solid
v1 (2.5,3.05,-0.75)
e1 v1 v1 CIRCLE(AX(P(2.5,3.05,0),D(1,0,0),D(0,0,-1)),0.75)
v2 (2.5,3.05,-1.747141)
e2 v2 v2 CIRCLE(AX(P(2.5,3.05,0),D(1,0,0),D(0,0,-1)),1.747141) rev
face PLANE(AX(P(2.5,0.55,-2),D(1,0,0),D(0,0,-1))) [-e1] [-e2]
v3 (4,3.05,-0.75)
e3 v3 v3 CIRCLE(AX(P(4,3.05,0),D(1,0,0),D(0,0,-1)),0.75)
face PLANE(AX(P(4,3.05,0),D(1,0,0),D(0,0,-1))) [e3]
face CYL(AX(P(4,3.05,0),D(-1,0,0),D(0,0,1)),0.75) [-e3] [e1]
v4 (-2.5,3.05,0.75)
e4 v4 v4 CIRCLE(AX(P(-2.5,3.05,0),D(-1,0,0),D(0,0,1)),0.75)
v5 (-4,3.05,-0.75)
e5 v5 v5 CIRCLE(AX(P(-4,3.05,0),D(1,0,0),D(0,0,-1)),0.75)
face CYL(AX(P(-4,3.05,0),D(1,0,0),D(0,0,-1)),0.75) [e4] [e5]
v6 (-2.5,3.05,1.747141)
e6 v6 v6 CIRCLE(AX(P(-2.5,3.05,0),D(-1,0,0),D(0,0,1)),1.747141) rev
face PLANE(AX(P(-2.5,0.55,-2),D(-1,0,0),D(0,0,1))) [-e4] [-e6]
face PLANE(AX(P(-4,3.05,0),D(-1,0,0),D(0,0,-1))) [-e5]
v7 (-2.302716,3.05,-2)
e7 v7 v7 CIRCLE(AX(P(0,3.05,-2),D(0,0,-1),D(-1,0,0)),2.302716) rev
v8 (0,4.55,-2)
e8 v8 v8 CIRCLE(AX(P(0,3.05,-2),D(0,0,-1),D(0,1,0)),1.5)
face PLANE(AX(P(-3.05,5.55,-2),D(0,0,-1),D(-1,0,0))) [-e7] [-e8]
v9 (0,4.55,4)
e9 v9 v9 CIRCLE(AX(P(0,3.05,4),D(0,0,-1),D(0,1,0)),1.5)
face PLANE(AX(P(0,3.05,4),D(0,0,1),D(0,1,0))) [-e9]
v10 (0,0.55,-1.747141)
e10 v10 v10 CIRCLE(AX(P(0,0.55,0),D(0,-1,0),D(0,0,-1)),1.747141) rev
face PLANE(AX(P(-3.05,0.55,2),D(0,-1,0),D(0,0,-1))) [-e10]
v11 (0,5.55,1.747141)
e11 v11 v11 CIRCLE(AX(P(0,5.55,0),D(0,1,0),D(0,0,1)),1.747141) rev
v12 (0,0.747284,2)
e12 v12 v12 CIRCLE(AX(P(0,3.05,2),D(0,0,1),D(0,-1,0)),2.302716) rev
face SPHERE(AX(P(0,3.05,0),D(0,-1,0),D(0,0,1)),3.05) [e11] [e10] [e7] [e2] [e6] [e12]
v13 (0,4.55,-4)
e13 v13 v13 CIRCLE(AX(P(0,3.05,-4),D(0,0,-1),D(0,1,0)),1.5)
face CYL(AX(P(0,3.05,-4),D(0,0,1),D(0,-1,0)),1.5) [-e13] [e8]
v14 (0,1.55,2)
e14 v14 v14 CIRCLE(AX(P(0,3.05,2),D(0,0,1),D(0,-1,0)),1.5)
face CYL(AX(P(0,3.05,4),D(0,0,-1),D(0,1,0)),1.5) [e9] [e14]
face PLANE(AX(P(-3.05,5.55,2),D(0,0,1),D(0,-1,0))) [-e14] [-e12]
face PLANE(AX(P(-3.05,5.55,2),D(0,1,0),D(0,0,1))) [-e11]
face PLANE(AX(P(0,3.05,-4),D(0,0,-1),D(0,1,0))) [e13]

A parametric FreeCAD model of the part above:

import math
import FreeCAD as App
import Part
import Sketcher
from FreeCAD import Vector
Q = App.Units.Quantity


def add_polygon(sketch, points):
    """Adds a closed chain of lines whose ends are joined by coincident constraints."""
    first, n = sketch.GeometryCount, len(points)
    for a, b in zip(points, points[1:] + points[:1]):
        sketch.addGeometry(Part.LineSegment(App.Vector(*a, 0), App.Vector(*b, 0)), False)
    for i in range(n):
        sketch.addConstraint(Sketcher.Constraint("Coincident", first + i, 2, first + (i + 1) % n, 1))

doc = App.newDocument("Part")
params = doc.addObject("Spreadsheet::Sheet", "Params")
for row, (alias, value) in enumerate([
    ("sketch1_radius", "3.05 mm"),
    ("revolution_angle", "360 deg"),
    ("sketch2_width", "5 mm"),
    ("sketch2_height", "4 mm"),
    ("sketch3_width", "5 mm"),
    ("sketch4_diameter", "1.5 mm"),
    ("pad1_length", "1.5 mm"),
    ("sketch5_diameter", "3 mm"),
    ("pad2_length", "2 mm"),
], start=1):
    params.set(f"A{row}", alias)
    params.set(f"B{row}", "=" + value)
    params.setAlias(f"B{row}", alias)

body = doc.addObject("PartDesign::Body", "Body")

# Sketch on YZ plane
sketch1 = body.newObject("Sketcher::SketchObject", "Sketch")
sketch1.AttachmentSupport = (doc.getObject("YZ_Plane"), [""])
sketch1.MapMode = "FlatFace"
sketch1.addGeometry(Part.LineSegment(Vector(6.1, 0, 0), Vector(0, 0, 0)), False)
sketch1.addGeometry(Part.ArcOfCircle(Part.Circle(Vector(3.05, 0, 0), Vector(0, 0, 1), 3.05), math.radians(180), math.radians(360)), False)
sketch1.addConstraint(Sketcher.Constraint("Coincident", 0, 1, 1, 2))
sketch1.addConstraint(Sketcher.Constraint("Coincident", 1, 1, 0, 2))
sketch1.addConstraint(Sketcher.Constraint("Horizontal", 0))
sketch1.addConstraint(Sketcher.Constraint("Coincident", 1, 1, -1, 1))
sketch1.addConstraint(Sketcher.Constraint("PointOnObject", 1, 3, -1))
sketch1.addConstraint(Sketcher.Constraint("Radius", 1, Q("3.05 mm")))
sketch1.setExpression("Constraints[5]", "Params.sketch1_radius")
revolution = body.newObject("PartDesign::Revolution", "Revolution")
revolution.Profile = sketch1
revolution.ReferenceAxis = (sketch1, ["H_Axis"])
revolution.setExpression("Angle", "Params.revolution_angle")

# Sketch on YZ plane
sketch2 = body.newObject("Sketcher::SketchObject", "Sketch001")
sketch2.AttachmentSupport = (doc.getObject("YZ_Plane"), [""])
sketch2.MapMode = "FlatFace"
add_polygon(sketch2, [(8.157, 5.107), (-2.057, 5.107), (-2.057, -5.107), (8.157, -5.107)])  # lines 0-3
add_polygon(sketch2, [(0.55, -2), (0.55, 2), (5.55, 2), (5.55, -2)])  # lines 4-7
sketch2.addConstraint(Sketcher.Constraint("Horizontal", 0))
sketch2.addConstraint(Sketcher.Constraint("Vertical", 1))
sketch2.addConstraint(Sketcher.Constraint("Horizontal", 2))
sketch2.addConstraint(Sketcher.Constraint("Vertical", 3))
sketch2.addConstraint(Sketcher.Constraint("Vertical", 4))
sketch2.addConstraint(Sketcher.Constraint("Horizontal", 5))
sketch2.addConstraint(Sketcher.Constraint("Vertical", 6))
sketch2.addConstraint(Sketcher.Constraint("Horizontal", 7))
sketch2.addConstraint(Sketcher.Constraint("Equal", 2, 1))
sketch2.addConstraint(Sketcher.Constraint("DistanceX", 5, 1, 5, 2, Q("5 mm")))
sketch2.addConstraint(Sketcher.Constraint("DistanceY", 4, 1, 4, 2, Q("4 mm")))
sketch2.addConstraint(Sketcher.Constraint("DistanceY", -1, 1, 4, 2, Q("2 mm")))
sketch2.addConstraint(Sketcher.Constraint("DistanceX", 0, 2, 0, 1, Q("10.214 mm")))
sketch2.addConstraint(Sketcher.Constraint("DistanceX", -1, 1, 4, 2, Q("0.55 mm")))
sketch2.addConstraint(Sketcher.Constraint("DistanceX", 0, 2, -1, 1, Q("2.057 mm")))
sketch2.addConstraint(Sketcher.Constraint("DistanceY", -1, 1, 0, 2, Q("5.107 mm")))
sketch2.setExpression("Constraints[17]", "Params.sketch2_width")
sketch2.setExpression("Constraints[18]", "Params.sketch2_height")
pocket1 = body.newObject("PartDesign::Pocket", "Pocket")
pocket1.Profile = sketch2
pocket1.Type = "ThroughAll"
pocket1.Midplane = True

# Sketch on XY plane
sketch3 = body.newObject("Sketcher::SketchObject", "Sketch002")
sketch3.AttachmentSupport = (doc.getObject("XY_Plane"), [""])
sketch3.MapMode = "FlatFace"
add_polygon(sketch3, [(-4.934, 7.434), (-4.934, -1.334), (4.934, -1.334), (4.934, 7.434)])  # lines 0-3
add_polygon(sketch3, [(2.5, 0.55), (-2.5, 0.55), (-2.5, 5.55), (2.5, 5.55)])  # lines 4-7
sketch3.addConstraint(Sketcher.Constraint("Vertical", 0))
sketch3.addConstraint(Sketcher.Constraint("Horizontal", 1))
sketch3.addConstraint(Sketcher.Constraint("Vertical", 2))
sketch3.addConstraint(Sketcher.Constraint("Horizontal", 3))
sketch3.addConstraint(Sketcher.Constraint("Horizontal", 4))
sketch3.addConstraint(Sketcher.Constraint("Vertical", 5))
sketch3.addConstraint(Sketcher.Constraint("Horizontal", 6))
sketch3.addConstraint(Sketcher.Constraint("Vertical", 7))
sketch3.addConstraint(Sketcher.Constraint("Equal", 6, 5))
sketch3.addConstraint(Sketcher.Constraint("DistanceX", 4, 2, 4, 1, Q("5 mm")))
sketch3.addConstraint(Sketcher.Constraint("DistanceX", 4, 2, -1, 1, Q("2.5 mm")))
sketch3.addConstraint(Sketcher.Constraint("DistanceX", 1, 1, 1, 2, Q("9.868 mm")))
sketch3.addConstraint(Sketcher.Constraint("DistanceY", 0, 2, 0, 1, Q("8.768 mm")))
sketch3.addConstraint(Sketcher.Constraint("DistanceY", -1, 1, 4, 2, Q("0.55 mm")))
sketch3.addConstraint(Sketcher.Constraint("DistanceX", 0, 2, -1, 1, Q("4.934 mm")))
sketch3.addConstraint(Sketcher.Constraint("DistanceY", 0, 2, -1, 1, Q("1.334 mm")))
sketch3.setExpression("Constraints[17]", "Params.sketch3_width")
pocket2 = body.newObject("PartDesign::Pocket", "Pocket001")
pocket2.Profile = sketch3
pocket2.Type = "ThroughAll"
pocket2.Midplane = True

# Sketch on YZ plane
sketch4 = body.newObject("Sketcher::SketchObject", "Sketch003")
sketch4.AttachmentSupport = (doc.getObject("YZ_Plane"), [""])
sketch4.MapMode = "FlatFace"
sketch4.AttachmentOffset = App.Placement(Vector(0, 0, 2.5), App.Rotation())
sketch4.addGeometry(Part.Circle(Vector(3.05, 0, 0), Vector(0, 0, 1), 0.75), False)
sketch4.addConstraint(Sketcher.Constraint("PointOnObject", 0, 3, -1))
sketch4.addConstraint(Sketcher.Constraint("Diameter", 0, Q("1.5 mm")))
sketch4.addConstraint(Sketcher.Constraint("DistanceX", -1, 1, 0, 3, Q("3.05 mm")))
sketch4.setExpression("Constraints[1]", "Params.sketch4_diameter")
pad1 = body.newObject("PartDesign::Pad", "Pad")
pad1.Profile = sketch4
pad1.setExpression("Length", "Params.pad1_length")
doc.recompute()

mirrored = body.newObject("PartDesign::Mirrored", "Mirrored")
mirrored.Originals = [pad1]
mirrored.MirrorPlane = (doc.getObject("YZ_Plane"), [""])
body.Tip = mirrored

# Sketch on XY plane
sketch5 = body.newObject("Sketcher::SketchObject", "Sketch004")
sketch5.AttachmentSupport = (doc.getObject("XY_Plane"), [""])
sketch5.MapMode = "FlatFace"
sketch5.AttachmentOffset = App.Placement(Vector(0, 0, -2), App.Rotation())
sketch5.addGeometry(Part.Circle(Vector(0, 3.05, 0), Vector(0, 0, 1), 1.5), False)
sketch5.addConstraint(Sketcher.Constraint("PointOnObject", 0, 3, -2))
sketch5.addConstraint(Sketcher.Constraint("Diameter", 0, Q("3 mm")))
sketch5.addConstraint(Sketcher.Constraint("DistanceY", -1, 1, 0, 3, Q("3.05 mm")))
sketch5.setExpression("Constraints[1]", "Params.sketch5_diameter")
pad2 = body.newObject("PartDesign::Pad", "Pad001")
pad2.Profile = sketch5
pad2.setExpression("Length", "Params.pad2_length")
pad2.Reversed = True
doc.recompute()

mirrored2 = body.newObject("PartDesign::Mirrored", "Mirrored001")
mirrored2.Originals = [pad2]
mirrored2.MirrorPlane = (doc.getObject("XY_Plane"), [""])
body.Tip = mirrored2

doc.recompute()
